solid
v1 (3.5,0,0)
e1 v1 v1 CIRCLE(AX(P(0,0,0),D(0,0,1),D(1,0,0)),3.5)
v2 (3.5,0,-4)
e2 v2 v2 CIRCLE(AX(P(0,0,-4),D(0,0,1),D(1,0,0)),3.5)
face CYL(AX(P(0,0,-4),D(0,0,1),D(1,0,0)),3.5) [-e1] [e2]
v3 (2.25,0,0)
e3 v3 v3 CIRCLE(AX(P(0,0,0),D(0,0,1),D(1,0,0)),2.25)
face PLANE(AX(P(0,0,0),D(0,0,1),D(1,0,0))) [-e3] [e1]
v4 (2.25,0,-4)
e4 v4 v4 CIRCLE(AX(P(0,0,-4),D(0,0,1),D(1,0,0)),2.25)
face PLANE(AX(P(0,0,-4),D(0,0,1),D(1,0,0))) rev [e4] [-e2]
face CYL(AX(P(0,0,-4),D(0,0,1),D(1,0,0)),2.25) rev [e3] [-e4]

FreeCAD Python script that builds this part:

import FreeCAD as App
import Part
import Sketcher
from FreeCAD import Vector
Q = App.Units.Quantity

doc = App.newDocument("Part")
body = doc.addObject("PartDesign::Body", "Body")

# Sketch on XY plane
sketch1 = doc.addObject("Sketcher::SketchObject", "Sketch")
body.addObject(sketch1)
sketch1.AttachmentSupport = (doc.XY_Plane, [""])
sketch1.MapMode = "FlatFace"
sketch1.addGeometry(Part.Circle(Vector(0, 0, 0), Vector(0, 0, 1), 3.5), False)
sketch1.addConstraint(Sketcher.Constraint("Coincident", 0, 3, -1, 1))
sketch1.addConstraint(Sketcher.Constraint("Diameter", 0, Q("7 mm")))
pad1 = doc.addObject("PartDesign::Pad", "Pad")
body.addObject(pad1)
pad1.Profile = sketch1
pad1.Length = 4
pad1.Reversed = True

# Sketch on XY plane
sketch2 = doc.addObject("Sketcher::SketchObject", "Sketch001")
body.addObject(sketch2)
sketch2.AttachmentSupport = (doc.XY_Plane, [""])
sketch2.MapMode = "FlatFace"
sketch2.addGeometry(Part.Circle(Vector(0, 0, 0), Vector(0, 0, 1), 2.2), False)
sketch2.addConstraint(Sketcher.Constraint("Coincident", 0, 3, -1, 1))
sketch2.addConstraint(Sketcher.Constraint("Diameter", 0, Q("4.5 mm")))
pocket1 = doc.addObject("PartDesign::Pocket", "Pocket")
body.addObject(pocket1)
pocket1.Profile = sketch2
pocket1.Length = 4

doc.recompute()
